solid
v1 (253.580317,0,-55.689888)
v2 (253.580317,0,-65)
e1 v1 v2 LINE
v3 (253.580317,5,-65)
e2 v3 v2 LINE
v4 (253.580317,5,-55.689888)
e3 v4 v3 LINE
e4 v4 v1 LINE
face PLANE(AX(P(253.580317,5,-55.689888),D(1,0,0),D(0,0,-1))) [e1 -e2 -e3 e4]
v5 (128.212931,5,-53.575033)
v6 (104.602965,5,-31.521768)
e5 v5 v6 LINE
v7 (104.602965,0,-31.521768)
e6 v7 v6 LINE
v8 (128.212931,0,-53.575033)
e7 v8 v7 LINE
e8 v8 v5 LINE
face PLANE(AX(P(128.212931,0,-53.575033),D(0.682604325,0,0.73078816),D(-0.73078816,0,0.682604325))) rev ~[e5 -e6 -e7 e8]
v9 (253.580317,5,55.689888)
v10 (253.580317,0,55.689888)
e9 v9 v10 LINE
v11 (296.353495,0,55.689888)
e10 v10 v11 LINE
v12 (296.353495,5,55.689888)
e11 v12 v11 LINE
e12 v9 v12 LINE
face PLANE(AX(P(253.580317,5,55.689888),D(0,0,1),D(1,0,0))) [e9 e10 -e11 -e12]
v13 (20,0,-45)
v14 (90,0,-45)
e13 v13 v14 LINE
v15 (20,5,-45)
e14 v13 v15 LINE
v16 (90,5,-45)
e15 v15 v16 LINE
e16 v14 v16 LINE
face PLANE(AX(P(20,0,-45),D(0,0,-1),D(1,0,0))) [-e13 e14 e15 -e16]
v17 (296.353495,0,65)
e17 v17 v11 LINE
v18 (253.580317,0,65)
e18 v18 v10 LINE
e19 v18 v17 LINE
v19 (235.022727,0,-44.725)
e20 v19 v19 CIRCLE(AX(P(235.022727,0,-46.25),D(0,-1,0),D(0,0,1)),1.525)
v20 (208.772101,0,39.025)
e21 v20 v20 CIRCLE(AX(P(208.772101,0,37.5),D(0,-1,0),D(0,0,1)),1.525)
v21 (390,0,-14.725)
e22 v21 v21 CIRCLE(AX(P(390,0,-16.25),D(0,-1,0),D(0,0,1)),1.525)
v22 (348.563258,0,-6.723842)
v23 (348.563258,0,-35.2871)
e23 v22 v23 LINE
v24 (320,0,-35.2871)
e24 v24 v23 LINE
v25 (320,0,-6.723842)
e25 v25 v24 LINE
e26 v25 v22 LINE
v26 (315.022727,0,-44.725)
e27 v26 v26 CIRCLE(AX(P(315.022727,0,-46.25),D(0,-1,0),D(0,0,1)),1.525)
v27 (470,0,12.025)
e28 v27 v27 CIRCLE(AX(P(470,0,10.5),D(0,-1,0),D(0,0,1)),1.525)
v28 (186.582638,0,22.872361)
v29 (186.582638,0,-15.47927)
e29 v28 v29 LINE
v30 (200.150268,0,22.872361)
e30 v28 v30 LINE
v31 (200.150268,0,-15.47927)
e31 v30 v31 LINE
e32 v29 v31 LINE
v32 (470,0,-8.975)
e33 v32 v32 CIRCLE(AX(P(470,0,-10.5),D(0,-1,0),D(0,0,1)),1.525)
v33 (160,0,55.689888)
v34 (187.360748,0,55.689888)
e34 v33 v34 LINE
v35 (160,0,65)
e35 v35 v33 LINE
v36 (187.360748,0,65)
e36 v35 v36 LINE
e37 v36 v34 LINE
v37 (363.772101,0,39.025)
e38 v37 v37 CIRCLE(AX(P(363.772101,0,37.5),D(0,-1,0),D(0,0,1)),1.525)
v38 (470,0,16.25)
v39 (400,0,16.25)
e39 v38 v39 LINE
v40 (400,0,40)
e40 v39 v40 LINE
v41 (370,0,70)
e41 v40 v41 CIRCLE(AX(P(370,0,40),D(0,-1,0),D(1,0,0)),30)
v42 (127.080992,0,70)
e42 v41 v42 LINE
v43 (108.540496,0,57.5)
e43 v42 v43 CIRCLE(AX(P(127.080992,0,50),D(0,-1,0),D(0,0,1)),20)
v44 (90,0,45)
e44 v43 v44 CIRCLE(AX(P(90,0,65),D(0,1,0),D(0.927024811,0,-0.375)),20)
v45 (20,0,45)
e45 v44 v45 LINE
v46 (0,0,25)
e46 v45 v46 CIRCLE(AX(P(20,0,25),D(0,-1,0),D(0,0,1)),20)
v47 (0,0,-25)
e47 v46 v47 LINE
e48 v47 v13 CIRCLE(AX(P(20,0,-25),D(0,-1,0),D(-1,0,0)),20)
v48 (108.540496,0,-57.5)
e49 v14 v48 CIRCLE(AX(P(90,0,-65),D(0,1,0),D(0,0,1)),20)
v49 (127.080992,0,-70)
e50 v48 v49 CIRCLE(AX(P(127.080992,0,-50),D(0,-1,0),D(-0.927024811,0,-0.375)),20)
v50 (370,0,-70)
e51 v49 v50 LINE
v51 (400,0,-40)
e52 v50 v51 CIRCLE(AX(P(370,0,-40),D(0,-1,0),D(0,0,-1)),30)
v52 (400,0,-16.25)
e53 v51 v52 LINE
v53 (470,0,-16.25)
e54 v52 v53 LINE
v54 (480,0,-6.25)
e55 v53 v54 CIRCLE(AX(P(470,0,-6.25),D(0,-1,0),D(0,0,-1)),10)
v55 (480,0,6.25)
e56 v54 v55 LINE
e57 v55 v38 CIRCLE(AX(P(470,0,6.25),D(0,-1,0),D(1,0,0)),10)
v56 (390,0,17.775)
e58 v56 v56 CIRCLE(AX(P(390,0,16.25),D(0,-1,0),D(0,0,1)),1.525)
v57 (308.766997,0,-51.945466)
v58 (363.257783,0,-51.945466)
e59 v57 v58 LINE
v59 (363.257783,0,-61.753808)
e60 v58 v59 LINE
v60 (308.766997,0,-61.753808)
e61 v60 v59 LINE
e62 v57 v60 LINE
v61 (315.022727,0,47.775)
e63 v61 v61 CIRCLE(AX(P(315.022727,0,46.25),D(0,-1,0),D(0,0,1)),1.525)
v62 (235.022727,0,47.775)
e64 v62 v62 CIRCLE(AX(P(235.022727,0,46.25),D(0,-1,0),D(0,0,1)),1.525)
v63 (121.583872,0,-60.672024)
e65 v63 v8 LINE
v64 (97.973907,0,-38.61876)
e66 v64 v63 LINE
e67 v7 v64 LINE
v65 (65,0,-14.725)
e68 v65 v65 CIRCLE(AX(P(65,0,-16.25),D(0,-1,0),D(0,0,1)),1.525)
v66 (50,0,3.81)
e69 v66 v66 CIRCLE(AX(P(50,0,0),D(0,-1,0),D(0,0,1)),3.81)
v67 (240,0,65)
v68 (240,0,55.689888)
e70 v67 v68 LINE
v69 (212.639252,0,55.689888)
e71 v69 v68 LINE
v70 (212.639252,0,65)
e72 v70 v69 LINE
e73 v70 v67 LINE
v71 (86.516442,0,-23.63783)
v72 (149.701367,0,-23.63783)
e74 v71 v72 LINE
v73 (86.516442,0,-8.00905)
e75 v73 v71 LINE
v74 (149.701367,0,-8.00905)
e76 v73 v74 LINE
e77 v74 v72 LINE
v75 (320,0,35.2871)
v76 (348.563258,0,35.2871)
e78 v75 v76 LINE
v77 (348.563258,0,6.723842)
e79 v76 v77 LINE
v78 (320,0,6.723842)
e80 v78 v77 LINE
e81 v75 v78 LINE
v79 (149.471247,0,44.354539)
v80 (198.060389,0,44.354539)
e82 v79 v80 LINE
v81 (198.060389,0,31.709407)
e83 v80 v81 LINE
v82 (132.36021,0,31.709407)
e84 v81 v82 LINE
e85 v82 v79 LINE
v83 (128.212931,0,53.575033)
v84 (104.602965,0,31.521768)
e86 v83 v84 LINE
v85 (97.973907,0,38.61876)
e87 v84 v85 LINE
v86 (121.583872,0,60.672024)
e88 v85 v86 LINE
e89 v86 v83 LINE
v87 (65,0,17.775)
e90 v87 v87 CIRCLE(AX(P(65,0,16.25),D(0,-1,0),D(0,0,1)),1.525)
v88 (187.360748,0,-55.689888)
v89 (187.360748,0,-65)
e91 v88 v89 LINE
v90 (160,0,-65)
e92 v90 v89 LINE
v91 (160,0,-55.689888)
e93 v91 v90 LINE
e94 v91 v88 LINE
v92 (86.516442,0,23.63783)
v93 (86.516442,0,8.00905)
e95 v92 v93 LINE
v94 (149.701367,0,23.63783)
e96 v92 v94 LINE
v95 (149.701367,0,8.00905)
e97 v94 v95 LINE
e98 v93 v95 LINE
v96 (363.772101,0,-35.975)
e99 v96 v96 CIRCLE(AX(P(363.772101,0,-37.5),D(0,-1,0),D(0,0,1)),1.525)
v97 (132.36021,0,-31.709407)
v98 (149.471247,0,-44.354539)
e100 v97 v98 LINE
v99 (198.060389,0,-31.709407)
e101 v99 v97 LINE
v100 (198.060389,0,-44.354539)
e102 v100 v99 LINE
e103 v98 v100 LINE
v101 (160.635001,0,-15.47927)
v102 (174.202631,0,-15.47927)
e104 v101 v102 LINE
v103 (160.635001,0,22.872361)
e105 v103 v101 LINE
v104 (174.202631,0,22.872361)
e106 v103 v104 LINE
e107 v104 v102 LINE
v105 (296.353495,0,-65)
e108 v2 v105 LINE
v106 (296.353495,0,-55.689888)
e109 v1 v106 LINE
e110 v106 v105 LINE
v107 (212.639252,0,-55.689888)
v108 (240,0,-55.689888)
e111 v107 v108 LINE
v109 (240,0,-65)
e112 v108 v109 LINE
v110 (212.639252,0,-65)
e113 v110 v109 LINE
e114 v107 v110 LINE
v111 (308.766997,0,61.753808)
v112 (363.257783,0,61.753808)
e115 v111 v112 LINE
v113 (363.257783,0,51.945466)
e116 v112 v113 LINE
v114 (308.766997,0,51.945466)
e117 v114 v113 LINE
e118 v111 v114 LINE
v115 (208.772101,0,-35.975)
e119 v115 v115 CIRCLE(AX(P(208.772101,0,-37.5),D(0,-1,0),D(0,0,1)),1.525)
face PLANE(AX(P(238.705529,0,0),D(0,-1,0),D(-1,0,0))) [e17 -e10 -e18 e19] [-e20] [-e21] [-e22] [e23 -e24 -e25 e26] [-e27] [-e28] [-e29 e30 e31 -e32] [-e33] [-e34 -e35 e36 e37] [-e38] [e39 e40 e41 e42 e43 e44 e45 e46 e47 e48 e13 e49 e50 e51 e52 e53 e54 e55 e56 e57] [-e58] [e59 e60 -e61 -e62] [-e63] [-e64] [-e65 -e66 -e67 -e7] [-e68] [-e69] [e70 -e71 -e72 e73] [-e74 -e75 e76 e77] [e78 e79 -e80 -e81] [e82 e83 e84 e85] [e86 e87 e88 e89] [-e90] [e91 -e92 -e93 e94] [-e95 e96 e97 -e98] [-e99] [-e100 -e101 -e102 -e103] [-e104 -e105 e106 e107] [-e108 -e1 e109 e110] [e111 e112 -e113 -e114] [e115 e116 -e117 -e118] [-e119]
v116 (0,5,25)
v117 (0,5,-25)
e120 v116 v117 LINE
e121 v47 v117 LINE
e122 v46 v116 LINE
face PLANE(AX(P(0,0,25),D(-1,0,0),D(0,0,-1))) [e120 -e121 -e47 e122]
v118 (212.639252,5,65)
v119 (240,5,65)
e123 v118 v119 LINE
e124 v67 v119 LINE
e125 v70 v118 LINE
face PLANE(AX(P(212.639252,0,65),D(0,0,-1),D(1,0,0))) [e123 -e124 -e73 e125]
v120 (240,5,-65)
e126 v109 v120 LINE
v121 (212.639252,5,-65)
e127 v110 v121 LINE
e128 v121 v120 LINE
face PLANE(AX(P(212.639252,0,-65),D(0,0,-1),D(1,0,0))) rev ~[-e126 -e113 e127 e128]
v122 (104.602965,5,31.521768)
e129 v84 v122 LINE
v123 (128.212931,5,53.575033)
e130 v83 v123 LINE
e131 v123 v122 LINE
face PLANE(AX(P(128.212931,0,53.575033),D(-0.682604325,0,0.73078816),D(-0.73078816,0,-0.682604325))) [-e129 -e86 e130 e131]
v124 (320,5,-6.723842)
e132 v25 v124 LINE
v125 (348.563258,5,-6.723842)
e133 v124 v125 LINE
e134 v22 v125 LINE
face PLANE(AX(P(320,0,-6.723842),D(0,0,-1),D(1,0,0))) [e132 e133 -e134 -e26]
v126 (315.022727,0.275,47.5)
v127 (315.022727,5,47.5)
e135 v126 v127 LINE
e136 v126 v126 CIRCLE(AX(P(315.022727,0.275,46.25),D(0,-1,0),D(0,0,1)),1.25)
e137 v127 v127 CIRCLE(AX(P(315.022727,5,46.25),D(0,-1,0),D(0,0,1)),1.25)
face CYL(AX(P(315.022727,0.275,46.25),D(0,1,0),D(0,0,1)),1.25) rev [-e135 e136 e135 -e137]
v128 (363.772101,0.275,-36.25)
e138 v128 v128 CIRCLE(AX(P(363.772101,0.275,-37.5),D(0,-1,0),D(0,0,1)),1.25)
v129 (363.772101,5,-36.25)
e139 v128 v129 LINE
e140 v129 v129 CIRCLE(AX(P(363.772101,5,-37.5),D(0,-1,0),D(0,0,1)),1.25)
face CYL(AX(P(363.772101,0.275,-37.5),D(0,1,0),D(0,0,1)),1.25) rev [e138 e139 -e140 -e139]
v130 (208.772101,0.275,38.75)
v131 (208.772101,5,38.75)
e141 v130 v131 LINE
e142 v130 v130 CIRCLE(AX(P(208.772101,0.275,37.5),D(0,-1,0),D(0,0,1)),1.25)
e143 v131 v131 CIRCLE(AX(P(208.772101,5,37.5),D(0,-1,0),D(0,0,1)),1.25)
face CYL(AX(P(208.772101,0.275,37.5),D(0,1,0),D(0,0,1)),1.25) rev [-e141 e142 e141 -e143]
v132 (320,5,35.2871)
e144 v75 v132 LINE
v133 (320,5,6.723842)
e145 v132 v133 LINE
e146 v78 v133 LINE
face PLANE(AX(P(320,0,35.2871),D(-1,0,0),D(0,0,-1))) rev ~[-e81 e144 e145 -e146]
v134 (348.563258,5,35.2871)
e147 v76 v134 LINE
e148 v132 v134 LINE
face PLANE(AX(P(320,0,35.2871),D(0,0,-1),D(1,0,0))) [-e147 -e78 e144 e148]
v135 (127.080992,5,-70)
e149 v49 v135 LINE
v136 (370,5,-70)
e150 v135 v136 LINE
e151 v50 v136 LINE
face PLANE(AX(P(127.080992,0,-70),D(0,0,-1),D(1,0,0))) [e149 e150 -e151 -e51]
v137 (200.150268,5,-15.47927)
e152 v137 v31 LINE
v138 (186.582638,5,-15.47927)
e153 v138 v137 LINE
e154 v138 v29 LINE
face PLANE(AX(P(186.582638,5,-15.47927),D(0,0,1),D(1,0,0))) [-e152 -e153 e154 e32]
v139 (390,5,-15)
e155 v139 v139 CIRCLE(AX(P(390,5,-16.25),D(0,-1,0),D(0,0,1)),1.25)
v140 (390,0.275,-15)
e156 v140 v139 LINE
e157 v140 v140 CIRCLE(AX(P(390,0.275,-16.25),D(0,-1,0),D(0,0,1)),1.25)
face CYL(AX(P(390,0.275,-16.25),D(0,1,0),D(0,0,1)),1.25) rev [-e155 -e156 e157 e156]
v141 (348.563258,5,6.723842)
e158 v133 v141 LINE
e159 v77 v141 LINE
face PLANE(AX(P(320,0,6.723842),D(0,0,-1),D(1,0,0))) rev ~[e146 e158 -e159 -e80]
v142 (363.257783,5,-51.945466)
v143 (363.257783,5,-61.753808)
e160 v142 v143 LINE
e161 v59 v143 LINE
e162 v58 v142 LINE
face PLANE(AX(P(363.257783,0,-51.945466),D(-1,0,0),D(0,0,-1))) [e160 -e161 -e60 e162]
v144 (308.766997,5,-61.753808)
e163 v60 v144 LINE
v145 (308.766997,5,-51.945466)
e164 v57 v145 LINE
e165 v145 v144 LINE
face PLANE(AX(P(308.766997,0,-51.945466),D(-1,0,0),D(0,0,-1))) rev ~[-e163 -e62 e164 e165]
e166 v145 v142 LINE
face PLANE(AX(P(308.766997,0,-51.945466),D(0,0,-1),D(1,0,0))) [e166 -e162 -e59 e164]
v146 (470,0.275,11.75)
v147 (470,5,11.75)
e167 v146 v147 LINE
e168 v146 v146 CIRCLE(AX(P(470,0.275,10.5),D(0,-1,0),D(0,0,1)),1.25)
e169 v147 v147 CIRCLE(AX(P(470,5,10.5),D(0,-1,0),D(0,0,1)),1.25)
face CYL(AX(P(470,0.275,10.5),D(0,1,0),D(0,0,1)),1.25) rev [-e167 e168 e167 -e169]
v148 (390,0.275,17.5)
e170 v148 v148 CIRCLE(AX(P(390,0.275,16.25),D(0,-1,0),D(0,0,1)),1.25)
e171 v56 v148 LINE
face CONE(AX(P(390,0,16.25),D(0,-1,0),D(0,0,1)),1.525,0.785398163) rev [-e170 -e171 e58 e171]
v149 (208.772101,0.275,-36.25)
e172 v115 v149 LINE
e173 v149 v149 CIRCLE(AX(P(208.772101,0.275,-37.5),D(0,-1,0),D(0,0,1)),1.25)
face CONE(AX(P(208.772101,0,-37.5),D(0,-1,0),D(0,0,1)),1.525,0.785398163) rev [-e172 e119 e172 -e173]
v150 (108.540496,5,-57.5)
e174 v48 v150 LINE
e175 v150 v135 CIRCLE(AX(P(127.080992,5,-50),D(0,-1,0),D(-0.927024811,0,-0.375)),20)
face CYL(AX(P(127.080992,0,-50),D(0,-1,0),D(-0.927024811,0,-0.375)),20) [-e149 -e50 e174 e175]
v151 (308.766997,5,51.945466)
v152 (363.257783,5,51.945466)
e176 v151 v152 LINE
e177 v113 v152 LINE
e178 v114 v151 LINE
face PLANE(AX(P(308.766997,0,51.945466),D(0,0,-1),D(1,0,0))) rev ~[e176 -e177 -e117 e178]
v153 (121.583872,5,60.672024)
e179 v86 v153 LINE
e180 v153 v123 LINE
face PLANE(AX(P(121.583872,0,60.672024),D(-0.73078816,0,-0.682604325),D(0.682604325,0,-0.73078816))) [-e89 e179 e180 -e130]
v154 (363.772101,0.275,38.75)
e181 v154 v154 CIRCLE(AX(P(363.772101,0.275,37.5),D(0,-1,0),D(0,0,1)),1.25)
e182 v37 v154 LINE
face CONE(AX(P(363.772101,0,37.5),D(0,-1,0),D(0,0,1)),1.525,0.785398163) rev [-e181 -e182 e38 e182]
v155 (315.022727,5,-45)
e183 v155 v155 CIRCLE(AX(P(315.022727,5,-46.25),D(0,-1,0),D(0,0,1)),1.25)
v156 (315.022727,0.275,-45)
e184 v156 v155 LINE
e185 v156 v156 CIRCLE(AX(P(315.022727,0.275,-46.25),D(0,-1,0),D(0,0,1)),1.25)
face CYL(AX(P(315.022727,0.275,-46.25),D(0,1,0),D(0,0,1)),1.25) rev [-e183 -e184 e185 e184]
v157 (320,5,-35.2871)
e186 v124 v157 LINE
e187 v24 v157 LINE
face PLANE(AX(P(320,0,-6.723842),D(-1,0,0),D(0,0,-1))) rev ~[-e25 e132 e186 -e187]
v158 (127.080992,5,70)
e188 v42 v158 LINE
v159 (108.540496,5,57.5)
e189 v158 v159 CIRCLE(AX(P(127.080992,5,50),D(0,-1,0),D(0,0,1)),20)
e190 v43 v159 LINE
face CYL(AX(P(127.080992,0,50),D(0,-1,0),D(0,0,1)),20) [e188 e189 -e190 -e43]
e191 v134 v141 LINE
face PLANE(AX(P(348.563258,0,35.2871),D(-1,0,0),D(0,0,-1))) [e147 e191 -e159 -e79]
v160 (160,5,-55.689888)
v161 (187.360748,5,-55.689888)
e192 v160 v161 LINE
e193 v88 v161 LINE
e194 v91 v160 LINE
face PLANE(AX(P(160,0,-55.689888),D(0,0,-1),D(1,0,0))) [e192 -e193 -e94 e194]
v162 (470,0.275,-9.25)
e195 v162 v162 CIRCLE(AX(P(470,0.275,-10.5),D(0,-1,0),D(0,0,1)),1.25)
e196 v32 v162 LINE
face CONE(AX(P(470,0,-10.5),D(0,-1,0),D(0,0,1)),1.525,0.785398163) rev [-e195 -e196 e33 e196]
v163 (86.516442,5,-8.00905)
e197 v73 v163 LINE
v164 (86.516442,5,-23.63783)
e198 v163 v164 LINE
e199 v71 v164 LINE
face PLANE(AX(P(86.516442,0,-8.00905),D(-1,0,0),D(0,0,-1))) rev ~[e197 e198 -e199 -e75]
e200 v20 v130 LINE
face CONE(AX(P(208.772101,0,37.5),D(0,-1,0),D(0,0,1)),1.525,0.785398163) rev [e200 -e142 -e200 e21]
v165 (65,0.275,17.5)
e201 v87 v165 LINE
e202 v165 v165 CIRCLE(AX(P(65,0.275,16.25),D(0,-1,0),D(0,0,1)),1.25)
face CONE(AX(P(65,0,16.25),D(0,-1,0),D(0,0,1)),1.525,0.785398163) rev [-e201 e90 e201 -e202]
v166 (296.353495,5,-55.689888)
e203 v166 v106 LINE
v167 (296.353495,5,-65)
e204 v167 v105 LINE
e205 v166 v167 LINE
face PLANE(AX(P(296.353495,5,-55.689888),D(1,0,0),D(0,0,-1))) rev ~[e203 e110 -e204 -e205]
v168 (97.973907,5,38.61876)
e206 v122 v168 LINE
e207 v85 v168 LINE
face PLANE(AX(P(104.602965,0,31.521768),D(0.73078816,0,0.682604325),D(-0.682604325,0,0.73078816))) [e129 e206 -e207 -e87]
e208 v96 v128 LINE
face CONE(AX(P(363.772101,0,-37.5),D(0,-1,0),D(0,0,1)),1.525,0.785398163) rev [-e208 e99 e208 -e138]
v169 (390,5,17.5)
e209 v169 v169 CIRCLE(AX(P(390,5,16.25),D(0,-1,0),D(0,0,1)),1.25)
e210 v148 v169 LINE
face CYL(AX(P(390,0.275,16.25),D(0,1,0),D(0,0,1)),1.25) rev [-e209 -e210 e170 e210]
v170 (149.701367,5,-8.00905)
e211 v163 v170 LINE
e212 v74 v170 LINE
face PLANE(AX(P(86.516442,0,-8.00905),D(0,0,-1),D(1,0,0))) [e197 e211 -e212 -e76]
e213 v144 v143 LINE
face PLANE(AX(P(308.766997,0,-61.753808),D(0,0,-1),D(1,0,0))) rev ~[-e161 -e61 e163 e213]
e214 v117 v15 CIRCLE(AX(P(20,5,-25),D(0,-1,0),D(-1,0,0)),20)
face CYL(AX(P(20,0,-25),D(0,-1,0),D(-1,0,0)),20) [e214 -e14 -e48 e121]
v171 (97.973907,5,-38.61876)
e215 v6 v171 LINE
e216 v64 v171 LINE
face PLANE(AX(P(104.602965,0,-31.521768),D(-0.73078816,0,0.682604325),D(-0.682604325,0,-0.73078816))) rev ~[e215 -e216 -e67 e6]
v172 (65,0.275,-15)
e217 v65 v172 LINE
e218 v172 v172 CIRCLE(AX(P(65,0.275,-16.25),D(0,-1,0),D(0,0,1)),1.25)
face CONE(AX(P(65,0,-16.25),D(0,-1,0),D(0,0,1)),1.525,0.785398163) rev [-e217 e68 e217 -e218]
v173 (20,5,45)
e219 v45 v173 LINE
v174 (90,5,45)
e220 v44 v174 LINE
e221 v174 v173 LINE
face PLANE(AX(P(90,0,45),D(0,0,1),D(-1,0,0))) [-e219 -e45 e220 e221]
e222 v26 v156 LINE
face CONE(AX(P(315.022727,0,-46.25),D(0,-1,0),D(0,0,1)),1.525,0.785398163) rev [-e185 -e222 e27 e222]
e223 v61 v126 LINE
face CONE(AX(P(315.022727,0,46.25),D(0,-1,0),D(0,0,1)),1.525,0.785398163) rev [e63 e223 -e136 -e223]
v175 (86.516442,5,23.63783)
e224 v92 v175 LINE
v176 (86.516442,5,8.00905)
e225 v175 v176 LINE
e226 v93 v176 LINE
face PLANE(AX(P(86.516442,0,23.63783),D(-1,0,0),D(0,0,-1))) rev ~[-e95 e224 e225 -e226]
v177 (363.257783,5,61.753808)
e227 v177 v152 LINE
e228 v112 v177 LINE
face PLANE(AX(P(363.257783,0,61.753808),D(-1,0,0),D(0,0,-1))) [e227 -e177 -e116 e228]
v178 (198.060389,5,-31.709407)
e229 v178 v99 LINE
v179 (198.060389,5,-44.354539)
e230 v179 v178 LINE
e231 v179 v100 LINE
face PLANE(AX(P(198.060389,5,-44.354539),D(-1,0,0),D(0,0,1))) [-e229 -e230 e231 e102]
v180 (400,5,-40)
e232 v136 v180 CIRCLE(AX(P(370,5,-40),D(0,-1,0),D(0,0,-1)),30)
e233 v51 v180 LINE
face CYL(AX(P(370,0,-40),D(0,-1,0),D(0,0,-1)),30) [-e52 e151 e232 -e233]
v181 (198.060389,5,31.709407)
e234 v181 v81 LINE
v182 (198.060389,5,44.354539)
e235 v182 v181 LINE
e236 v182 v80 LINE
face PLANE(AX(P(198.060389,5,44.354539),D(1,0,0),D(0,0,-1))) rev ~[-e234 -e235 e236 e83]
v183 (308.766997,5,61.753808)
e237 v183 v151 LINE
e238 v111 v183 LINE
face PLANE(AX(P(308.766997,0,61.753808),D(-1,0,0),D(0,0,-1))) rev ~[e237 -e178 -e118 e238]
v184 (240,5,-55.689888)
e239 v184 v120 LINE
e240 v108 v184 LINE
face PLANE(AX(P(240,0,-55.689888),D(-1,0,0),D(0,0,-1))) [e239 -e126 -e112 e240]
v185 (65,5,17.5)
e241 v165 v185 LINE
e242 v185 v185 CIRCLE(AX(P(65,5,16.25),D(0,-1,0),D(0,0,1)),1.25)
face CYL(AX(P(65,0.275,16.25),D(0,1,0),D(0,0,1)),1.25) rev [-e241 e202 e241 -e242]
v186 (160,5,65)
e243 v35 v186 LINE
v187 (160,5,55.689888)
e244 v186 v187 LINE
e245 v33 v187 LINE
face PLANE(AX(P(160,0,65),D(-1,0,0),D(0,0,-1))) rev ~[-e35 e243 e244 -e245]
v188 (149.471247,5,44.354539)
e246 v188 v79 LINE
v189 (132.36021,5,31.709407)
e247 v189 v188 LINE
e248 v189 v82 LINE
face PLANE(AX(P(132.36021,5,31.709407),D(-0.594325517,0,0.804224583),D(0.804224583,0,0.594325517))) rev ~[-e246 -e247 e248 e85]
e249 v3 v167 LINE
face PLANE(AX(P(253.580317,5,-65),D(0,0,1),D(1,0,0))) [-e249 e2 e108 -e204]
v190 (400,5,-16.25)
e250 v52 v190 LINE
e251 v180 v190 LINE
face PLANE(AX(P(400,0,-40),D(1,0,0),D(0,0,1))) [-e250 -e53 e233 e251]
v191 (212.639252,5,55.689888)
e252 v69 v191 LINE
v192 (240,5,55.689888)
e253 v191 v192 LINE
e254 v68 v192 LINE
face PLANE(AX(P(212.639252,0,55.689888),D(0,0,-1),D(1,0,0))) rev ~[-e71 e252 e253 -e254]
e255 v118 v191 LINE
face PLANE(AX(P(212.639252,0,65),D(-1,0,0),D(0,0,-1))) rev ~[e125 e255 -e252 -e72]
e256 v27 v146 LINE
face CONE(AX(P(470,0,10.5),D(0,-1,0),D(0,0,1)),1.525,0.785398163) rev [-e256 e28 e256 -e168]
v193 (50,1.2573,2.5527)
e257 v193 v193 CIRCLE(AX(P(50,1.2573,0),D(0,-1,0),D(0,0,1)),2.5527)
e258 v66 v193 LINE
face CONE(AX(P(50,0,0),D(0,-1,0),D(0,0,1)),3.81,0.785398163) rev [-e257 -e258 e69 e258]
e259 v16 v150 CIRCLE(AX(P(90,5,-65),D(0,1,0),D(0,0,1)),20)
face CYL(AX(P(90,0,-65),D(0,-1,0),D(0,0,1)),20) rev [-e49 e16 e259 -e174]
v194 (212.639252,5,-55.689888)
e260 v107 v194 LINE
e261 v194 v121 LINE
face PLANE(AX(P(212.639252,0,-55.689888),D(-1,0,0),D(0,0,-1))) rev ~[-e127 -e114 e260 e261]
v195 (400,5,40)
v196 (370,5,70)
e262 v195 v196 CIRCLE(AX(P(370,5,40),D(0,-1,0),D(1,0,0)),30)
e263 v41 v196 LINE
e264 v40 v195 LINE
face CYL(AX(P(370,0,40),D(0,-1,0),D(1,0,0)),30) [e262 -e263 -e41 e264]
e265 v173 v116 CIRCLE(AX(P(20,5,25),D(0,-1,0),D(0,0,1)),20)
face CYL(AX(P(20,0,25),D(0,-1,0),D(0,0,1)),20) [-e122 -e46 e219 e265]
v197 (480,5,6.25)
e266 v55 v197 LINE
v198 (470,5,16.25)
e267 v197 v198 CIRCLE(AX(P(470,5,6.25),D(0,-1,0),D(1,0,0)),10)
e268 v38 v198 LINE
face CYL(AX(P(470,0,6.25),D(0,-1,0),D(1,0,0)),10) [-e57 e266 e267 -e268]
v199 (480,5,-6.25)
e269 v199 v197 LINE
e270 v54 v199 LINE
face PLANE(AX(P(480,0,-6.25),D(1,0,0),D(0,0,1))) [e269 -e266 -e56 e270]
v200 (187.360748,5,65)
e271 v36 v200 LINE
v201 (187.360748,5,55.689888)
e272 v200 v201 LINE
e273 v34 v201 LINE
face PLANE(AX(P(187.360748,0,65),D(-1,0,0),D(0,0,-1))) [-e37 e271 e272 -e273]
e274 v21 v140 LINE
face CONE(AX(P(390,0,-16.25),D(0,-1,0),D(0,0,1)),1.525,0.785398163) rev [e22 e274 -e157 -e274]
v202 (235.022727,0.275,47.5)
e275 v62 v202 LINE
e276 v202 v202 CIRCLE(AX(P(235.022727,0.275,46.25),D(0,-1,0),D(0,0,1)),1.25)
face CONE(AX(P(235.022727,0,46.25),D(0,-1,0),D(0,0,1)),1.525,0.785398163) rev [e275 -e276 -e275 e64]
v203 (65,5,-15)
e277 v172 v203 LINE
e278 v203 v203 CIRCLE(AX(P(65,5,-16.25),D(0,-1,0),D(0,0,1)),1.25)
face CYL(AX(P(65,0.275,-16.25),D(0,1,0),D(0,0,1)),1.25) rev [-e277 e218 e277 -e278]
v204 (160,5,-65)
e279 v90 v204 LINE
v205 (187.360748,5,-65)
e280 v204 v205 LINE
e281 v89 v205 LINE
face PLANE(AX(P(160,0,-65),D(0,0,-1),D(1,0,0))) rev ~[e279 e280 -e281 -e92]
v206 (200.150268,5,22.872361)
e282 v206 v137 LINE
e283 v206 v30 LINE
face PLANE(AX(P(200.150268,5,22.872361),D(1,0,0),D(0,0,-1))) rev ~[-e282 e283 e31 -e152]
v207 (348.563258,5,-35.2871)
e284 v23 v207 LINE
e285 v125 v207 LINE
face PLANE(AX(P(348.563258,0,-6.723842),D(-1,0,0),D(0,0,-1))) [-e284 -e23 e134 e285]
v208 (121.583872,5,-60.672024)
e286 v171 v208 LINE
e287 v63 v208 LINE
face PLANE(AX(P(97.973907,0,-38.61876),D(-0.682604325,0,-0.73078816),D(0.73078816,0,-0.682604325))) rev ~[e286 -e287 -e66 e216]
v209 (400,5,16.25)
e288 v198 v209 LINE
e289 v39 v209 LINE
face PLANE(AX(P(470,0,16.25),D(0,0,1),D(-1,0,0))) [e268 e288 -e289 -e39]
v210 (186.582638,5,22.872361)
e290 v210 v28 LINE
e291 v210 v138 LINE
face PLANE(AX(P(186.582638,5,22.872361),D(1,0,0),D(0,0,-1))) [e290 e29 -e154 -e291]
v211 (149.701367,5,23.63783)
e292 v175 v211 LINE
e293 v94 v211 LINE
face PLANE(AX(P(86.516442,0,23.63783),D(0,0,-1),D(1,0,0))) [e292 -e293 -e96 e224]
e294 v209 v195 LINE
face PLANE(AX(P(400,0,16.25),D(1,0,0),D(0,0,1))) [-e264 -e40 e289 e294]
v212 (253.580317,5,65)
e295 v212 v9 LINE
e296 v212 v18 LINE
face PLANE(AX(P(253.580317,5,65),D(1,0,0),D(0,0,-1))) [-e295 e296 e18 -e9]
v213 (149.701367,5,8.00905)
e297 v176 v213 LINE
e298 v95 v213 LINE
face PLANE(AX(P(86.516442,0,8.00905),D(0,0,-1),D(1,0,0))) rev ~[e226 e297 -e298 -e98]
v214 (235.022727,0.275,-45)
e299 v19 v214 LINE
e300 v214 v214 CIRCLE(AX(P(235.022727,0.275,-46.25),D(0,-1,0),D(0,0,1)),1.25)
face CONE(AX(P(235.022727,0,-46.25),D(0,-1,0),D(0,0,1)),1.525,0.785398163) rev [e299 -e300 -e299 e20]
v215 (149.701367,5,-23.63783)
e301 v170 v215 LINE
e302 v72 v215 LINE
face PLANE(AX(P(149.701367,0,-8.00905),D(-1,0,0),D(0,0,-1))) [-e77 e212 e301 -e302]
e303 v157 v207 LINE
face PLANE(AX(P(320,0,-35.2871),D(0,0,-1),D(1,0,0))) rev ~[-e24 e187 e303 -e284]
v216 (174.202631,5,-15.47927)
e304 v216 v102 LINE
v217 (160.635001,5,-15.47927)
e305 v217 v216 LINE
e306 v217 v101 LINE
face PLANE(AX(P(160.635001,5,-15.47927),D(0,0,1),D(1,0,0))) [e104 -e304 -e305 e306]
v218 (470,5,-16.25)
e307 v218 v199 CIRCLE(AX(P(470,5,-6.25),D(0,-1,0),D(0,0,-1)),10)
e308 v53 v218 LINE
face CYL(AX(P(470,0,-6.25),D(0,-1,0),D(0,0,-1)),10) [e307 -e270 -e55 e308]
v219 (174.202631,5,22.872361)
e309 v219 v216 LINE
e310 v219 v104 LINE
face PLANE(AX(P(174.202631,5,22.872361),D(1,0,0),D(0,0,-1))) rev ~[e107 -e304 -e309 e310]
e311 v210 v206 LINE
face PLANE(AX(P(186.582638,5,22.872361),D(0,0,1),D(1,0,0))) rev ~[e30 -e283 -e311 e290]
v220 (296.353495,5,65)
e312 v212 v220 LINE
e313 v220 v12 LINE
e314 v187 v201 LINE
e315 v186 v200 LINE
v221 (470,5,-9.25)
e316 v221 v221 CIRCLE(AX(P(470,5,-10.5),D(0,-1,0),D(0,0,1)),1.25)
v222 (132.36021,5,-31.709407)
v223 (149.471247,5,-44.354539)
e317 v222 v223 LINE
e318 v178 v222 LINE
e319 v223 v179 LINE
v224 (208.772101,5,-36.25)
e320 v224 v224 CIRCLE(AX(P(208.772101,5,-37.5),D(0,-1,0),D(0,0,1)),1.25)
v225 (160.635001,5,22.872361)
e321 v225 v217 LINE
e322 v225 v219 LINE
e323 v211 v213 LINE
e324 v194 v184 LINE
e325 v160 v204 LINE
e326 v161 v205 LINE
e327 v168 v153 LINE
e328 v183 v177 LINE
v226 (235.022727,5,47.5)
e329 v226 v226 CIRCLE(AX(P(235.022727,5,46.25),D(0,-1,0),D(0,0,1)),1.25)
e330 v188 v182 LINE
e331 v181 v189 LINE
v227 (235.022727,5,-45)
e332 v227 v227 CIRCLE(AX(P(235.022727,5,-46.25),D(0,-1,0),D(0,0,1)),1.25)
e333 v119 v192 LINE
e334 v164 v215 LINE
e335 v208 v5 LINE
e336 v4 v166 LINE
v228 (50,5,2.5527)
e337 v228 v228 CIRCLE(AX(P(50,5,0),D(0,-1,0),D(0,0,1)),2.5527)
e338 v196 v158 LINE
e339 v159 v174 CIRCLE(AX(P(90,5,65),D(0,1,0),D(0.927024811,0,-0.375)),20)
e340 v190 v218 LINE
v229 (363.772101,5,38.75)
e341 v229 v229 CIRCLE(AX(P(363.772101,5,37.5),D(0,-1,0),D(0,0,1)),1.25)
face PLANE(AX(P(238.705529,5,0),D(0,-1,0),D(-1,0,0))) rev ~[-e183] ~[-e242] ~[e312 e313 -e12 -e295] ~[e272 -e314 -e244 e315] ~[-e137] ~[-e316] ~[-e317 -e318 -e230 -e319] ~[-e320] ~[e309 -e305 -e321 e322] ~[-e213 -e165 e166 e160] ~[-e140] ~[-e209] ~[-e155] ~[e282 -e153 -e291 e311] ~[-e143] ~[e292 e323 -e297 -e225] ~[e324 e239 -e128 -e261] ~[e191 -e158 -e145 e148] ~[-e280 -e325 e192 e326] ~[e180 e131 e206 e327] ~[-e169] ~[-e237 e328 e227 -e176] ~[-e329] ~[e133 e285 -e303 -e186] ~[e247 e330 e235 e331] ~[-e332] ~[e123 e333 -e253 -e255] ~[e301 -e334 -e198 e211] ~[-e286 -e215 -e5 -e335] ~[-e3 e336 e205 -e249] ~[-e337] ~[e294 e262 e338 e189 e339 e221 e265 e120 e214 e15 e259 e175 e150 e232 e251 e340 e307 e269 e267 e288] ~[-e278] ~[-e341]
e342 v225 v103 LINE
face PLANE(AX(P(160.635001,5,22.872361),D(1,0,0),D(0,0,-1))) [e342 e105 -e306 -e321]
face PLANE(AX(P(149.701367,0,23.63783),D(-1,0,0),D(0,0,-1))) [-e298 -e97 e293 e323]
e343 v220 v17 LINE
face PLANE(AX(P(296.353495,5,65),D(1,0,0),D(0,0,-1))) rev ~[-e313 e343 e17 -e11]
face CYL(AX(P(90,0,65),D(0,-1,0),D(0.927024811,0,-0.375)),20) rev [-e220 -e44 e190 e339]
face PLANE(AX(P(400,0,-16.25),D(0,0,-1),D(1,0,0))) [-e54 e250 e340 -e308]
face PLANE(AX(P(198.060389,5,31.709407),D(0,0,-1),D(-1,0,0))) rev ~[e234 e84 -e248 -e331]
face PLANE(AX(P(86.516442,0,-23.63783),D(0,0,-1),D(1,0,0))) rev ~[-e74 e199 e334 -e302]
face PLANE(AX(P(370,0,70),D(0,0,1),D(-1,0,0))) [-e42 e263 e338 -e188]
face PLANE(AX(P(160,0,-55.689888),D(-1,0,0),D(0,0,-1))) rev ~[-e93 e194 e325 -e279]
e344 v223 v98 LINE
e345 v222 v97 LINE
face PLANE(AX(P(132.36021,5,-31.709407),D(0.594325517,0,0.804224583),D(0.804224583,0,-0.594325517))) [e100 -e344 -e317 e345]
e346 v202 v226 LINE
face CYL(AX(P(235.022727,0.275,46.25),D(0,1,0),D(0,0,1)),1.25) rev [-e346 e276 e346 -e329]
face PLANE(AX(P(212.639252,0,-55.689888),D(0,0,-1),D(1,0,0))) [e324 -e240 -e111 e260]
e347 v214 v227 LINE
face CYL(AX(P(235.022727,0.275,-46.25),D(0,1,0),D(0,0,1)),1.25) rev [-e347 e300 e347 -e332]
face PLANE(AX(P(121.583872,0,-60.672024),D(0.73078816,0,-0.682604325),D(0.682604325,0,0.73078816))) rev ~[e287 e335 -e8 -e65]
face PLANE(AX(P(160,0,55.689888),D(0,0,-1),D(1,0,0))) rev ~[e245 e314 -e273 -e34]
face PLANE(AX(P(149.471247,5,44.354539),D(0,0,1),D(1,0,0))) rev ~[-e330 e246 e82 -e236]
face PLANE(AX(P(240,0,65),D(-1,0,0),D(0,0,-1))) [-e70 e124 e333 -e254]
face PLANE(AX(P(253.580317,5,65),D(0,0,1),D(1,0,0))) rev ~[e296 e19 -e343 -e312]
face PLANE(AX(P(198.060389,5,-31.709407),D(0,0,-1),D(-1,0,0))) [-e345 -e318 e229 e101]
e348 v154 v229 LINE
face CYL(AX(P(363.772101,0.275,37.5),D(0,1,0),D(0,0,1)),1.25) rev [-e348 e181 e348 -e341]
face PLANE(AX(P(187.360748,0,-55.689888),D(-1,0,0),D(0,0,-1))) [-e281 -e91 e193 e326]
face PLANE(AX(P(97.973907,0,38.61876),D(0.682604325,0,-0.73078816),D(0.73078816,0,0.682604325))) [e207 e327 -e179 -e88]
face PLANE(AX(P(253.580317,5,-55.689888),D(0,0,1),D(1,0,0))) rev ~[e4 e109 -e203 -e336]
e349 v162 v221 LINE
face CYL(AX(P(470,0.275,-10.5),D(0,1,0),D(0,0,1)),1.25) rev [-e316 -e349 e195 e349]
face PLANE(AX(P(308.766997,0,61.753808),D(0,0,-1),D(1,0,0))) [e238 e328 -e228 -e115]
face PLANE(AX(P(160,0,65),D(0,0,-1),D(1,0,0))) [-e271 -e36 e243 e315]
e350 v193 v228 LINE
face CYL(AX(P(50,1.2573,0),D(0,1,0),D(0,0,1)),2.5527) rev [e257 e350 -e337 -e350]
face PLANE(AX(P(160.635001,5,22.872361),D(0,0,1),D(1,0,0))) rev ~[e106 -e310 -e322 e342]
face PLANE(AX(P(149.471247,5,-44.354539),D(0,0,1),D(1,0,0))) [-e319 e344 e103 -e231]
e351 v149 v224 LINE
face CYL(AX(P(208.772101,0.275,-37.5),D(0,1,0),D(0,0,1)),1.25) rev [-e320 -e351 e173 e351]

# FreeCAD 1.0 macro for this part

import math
import FreeCAD as App
import Part
import Sketcher
from FreeCAD import Vector
Q = App.Units.Quantity


def add_polygon(sketch, points):
    """Adds a closed chain of lines whose ends are joined by coincident constraints."""
    first, n = sketch.GeometryCount, len(points)
    for a, b in zip(points, points[1:] + points[:1]):
        sketch.addGeometry(Part.LineSegment(App.Vector(*a, 0), App.Vector(*b, 0)), False)
    for i in range(n):
        sketch.addConstraint(Sketcher.Constraint("Coincident", first + i, 2, first + (i + 1) % n, 1))

doc = App.newDocument("Part")
body = doc.addObject("PartDesign::Body", "Body")

sketch1 = body.newObject("Sketcher::SketchObject", "Sketch")
sketch1.AttachmentSupport = (doc.getObject("XZ_Plane"), [""])
sketch1.MapMode = "FlatFace"
sketch1.addGeometry(Part.LineSegment(Vector(0, -25, 0), Vector(0, 25, 0)), False)
sketch1.addGeometry(Part.ArcOfCircle(Part.Circle(Vector(20, 25, 0), Vector(0, 0, 1), 20), math.radians(90), math.radians(180)), False)
sketch1.addGeometry(Part.LineSegment(Vector(20, 45, 0), Vector(90, 45, 0)), False)
sketch1.addGeometry(Part.ArcOfCircle(Part.Circle(Vector(90, 65, 0), Vector(0, 0, 1), 20), math.radians(-90), math.radians(-22)), False)
sketch1.addGeometry(Part.ArcOfCircle(Part.Circle(Vector(127, 50, 0), Vector(0, 0, 1), 20), math.radians(90), math.radians(158)), False)
sketch1.addGeometry(Part.LineSegment(Vector(127, 70, 0), Vector(370, 70, 0)), False)
sketch1.addGeometry(Part.ArcOfCircle(Part.Circle(Vector(370, 40, 0), Vector(0, 0, 1), 30), math.radians(0), math.radians(90)), False)
sketch1.addGeometry(Part.LineSegment(Vector(400, 40, 0), Vector(400, 16, 0)), False)
sketch1.addGeometry(Part.LineSegment(Vector(400, 16, 0), Vector(470, 16, 0)), False)
sketch1.addGeometry(Part.ArcOfCircle(Part.Circle(Vector(470, 6, 0), Vector(0, 0, 1), 10), math.radians(0), math.radians(90)), False)
sketch1.addGeometry(Part.LineSegment(Vector(480, 6, 0), Vector(480, -6, 0)), False)
sketch1.addGeometry(Part.ArcOfCircle(Part.Circle(Vector(470, -6, 0), Vector(0, 0, 1), 10), math.radians(-90), math.radians(0)), False)
sketch1.addGeometry(Part.LineSegment(Vector(470, -16, 0), Vector(400, -16, 0)), False)
sketch1.addGeometry(Part.LineSegment(Vector(400, -16, 0), Vector(400, -40, 0)), False)
sketch1.addGeometry(Part.ArcOfCircle(Part.Circle(Vector(370, -40, 0), Vector(0, 0, 1), 30), math.radians(-90), math.radians(0)), False)
sketch1.addGeometry(Part.LineSegment(Vector(370, -70, 0), Vector(127, -70, 0)), False)
sketch1.addGeometry(Part.ArcOfCircle(Part.Circle(Vector(127, -50, 0), Vector(0, 0, 1), 20), math.radians(-158), math.radians(-90)), False)
sketch1.addGeometry(Part.ArcOfCircle(Part.Circle(Vector(90, -65, 0), Vector(0, 0, 1), 20), math.radians(22), math.radians(90)), False)
sketch1.addGeometry(Part.LineSegment(Vector(90, -45, 0), Vector(20, -45, 0)), False)
sketch1.addGeometry(Part.ArcOfCircle(Part.Circle(Vector(20, -25, 0), Vector(0, 0, 1), 20), math.radians(180), math.radians(270)), False)
add_polygon(sketch1, [(309, 62), (309, 52), (363, 52), (363, 62)])
add_polygon(sketch1, [(213, 65), (213, 56), (240, 56), (240, 65)])
add_polygon(sketch1, [(320, 35), (320, 7), (349, 7), (349, 35)])
add_polygon(sketch1, [(160, 65), (160, 56), (187, 56), (187, 65)])
add_polygon(sketch1, [(122, 61), (98, 39), (105, 32), (128, 54)])
add_polygon(sketch1, [(87, 24), (87, 8), (150, 8), (150, 24)])
add_polygon(sketch1, [(320, -7), (320, -35), (349, -35), (349, -7)])
add_polygon(sketch1, [(309, -52), (309, -62), (363, -62), (363, -52)])
add_polygon(sketch1, [(213, -56), (213, -65), (240, -65), (240, -56)])
add_polygon(sketch1, [(87, -8), (87, -24), (150, -24), (150, -8)])
add_polygon(sketch1, [(160, -56), (160, -65), (187, -65), (187, -56)])
add_polygon(sketch1, [(98, -39), (122, -61), (128, -54), (105, -32)])
sketch1.addConstraint([
    Sketcher.Constraint("Tangent", 0, 2, 1, 2),
    Sketcher.Constraint("Tangent", 1, 1, 2, 1),
    Sketcher.Constraint("Tangent", 2, 2, 3, 1),
    Sketcher.Constraint("Tangent", 3, 2, 4, 2),
    Sketcher.Constraint("Tangent", 4, 1, 5, 1),
    Sketcher.Constraint("Tangent", 5, 2, 6, 2),
    Sketcher.Constraint("Tangent", 6, 1, 7, 1),
    Sketcher.Constraint("Coincident", 7, 2, 8, 1),
    Sketcher.Constraint("Tangent", 8, 2, 9, 2),
    Sketcher.Constraint("Tangent", 9, 1, 10, 1),
    Sketcher.Constraint("Tangent", 10, 2, 11, 2),
    Sketcher.Constraint("Tangent", 11, 1, 12, 1),
    Sketcher.Constraint("Coincident", 12, 2, 13, 1),
    Sketcher.Constraint("Tangent", 13, 2, 14, 2),
    Sketcher.Constraint("Tangent", 14, 1, 15, 1),
    Sketcher.Constraint("Tangent", 15, 2, 16, 2),
    Sketcher.Constraint("Tangent", 16, 1, 17, 1),
    Sketcher.Constraint("Tangent", 17, 2, 18, 1),
    Sketcher.Constraint("Tangent", 18, 2, 19, 2),
    Sketcher.Constraint("Tangent", 19, 1, 0, 1),
    Sketcher.Constraint("Vertical", 0),
    Sketcher.Constraint("Horizontal", 2),
    Sketcher.Constraint("Horizontal", 5),
    Sketcher.Constraint("Vertical", 7),
    Sketcher.Constraint("Horizontal", 8),
    Sketcher.Constraint("Vertical", 10),
    Sketcher.Constraint("Horizontal", 12),
    Sketcher.Constraint("Vertical", 13),
    Sketcher.Constraint("Horizontal", 15),
    Sketcher.Constraint("Horizontal", 18),
    Sketcher.Constraint("Vertical", 20),
    Sketcher.Constraint("Horizontal", 21),
    Sketcher.Constraint("Vertical", 22),
    Sketcher.Constraint("Horizontal", 23),
    Sketcher.Constraint("Vertical", 24),
    Sketcher.Constraint("Horizontal", 25),
    Sketcher.Constraint("Vertical", 26),
    Sketcher.Constraint("Horizontal", 27),
    Sketcher.Constraint("Vertical", 28),
    Sketcher.Constraint("Horizontal", 29),
    Sketcher.Constraint("Vertical", 30),
    Sketcher.Constraint("Horizontal", 31),
    Sketcher.Constraint("Vertical", 32),
    Sketcher.Constraint("Horizontal", 33),
    Sketcher.Constraint("Vertical", 34),
    Sketcher.Constraint("Horizontal", 35),
    Sketcher.Constraint("Vertical", 40),
    Sketcher.Constraint("Horizontal", 41),
    Sketcher.Constraint("Vertical", 42),
    Sketcher.Constraint("Horizontal", 43),
    Sketcher.Constraint("Vertical", 44),
    Sketcher.Constraint("Horizontal", 45),
    Sketcher.Constraint("Vertical", 46),
    Sketcher.Constraint("Horizontal", 47),
    Sketcher.Constraint("Vertical", 48),
    Sketcher.Constraint("Horizontal", 49),
    Sketcher.Constraint("Vertical", 50),
    Sketcher.Constraint("Horizontal", 51),
    Sketcher.Constraint("Vertical", 52),
    Sketcher.Constraint("Horizontal", 53),
    Sketcher.Constraint("Vertical", 54),
    Sketcher.Constraint("Horizontal", 55),
    Sketcher.Constraint("Vertical", 56),
    Sketcher.Constraint("Horizontal", 57),
    Sketcher.Constraint("Vertical", 58),
    Sketcher.Constraint("Horizontal", 59),
    Sketcher.Constraint("Vertical", 60),
    Sketcher.Constraint("Horizontal", 61),
    Sketcher.Constraint("Vertical", 62),
    Sketcher.Constraint("Horizontal", 63),
    Sketcher.Constraint("Equal", 1, 3),
    Sketcher.Constraint("Equal", 3, 4),
    Sketcher.Constraint("Equal", 9, 11),
    Sketcher.Constraint("Equal", 6, 14),
    Sketcher.Constraint("Equal", 4, 16),
    Sketcher.Constraint("Equal", 16, 17),
    Sketcher.Constraint("Equal", 17, 19),
    Sketcher.Constraint("Symmetric", 0, 2, 19, 1, -1, 1),
    Sketcher.Constraint("Symmetric", 6, 3, 14, 3, -1),
    Sketcher.Constraint("Symmetric", 31, 2, 44, 2, -1),
    Sketcher.Constraint("Symmetric", 29, 2, 46, 2, -1),
    Sketcher.Constraint("Symmetric", 23, 2, 48, 2, -1),
    Sketcher.Constraint("Symmetric", 21, 2, 50, 2, -1),
    Sketcher.Constraint("Symmetric", 27, 2, 52, 2, -1),
    Sketcher.Constraint("Symmetric", 25, 2, 54, 2, -1),
    Sketcher.Constraint("Symmetric", 43, 2, 56, 2, -1),
    Sketcher.Constraint("Symmetric", 41, 2, 58, 2, -1),
    Sketcher.Constraint("Symmetric", 35, 2, 60, 2, -1),
    Sketcher.Constraint("Symmetric", 33, 2, 62, 2, -1),
    Sketcher.Constraint("Symmetric", 39, 2, 64, 2, -1),
    Sketcher.Constraint("Symmetric", 38, 2, 65, 2, -1),
    Sketcher.Constraint("Symmetric", 37, 2, 66, 2, -1),
    Sketcher.Constraint("Symmetric", 36, 2, 67, 2, -1),
    Sketcher.Constraint("Perpendicular", 36, 37),
    Sketcher.Constraint("Perpendicular", 37, 38),
    Sketcher.Constraint("Perpendicular", 38, 39),
    Sketcher.Constraint("Horizontal", 3, 3, 26, 2),
    Sketcher.Constraint("Horizontal", 25, 2, 32, 2),
    Sketcher.Constraint("Horizontal", 27, 2, 34, 2),
    Sketcher.Constraint("Vertical", 4, 3, 16, 3),
    Sketcher.Constraint("Equal", 2, 8),
    Sketcher.Constraint("Equal", 27, 33),
    Sketcher.Constraint("Equal", 7, 13),
    Sketcher.Constraint("Equal", 47, 28),
    Sketcher.Constraint("Radius", 1, Q("20 mm")),
    Sketcher.Constraint("Radius", 6, Q("30 mm")),
    Sketcher.Constraint("Radius", 9, Q("10 mm")),
    Sketcher.Constraint("DistanceX", 2, 1, 2, 2, Q("70 mm")),
    Sketcher.Constraint("DistanceY", 0, 1, 0, 2, Q("50 mm")),
    Sketcher.Constraint("DistanceY", 10, 2, 10, 1, Q("12.5 mm")),
    Sketcher.Constraint("DistanceY", -1, 1, 4, 3, Q("50 mm")),
    Sketcher.Constraint("DistanceX", -1, 1, 6, 3, Q("370 mm")),
    Sketcher.Constraint("DistanceX", -1, 1, 25, 2, Q("240 mm")),
    Sketcher.Constraint("DistanceX", -1, 1, 28, 2, Q("320 mm")),
    Sketcher.Constraint("DistanceX", -1, 1, 32, 2, Q("160 mm")),
    Sketcher.Constraint("DistanceX", 29, 1, 29, 2, Q("28.563258 mm")),
    Sketcher.Constraint("DistanceY", 20, 2, 20, 1, Q("9.808342 mm")),
    Sketcher.Constraint("DistanceY", 40, 2, 40, 1, Q("15.62878 mm")),
    Sketcher.Constraint("DistanceY", -1, 1, 30, 2, Q("35.2871 mm")),
    Sketcher.Constraint("Distance", 37, Q("9.711421 mm")),
    Sketcher.Constraint("DistanceX", 21, 1, 21, 2, Q("54.490787 mm")),
    Sketcher.Constraint("DistanceX", 25, 1, 25, 2, Q("27.360748 mm")),
    Sketcher.Constraint("DistanceX", 41, 1, 41, 2, Q("63.184925 mm")),
    Sketcher.Constraint("DistanceY", 24, 2, 24, 1, Q("9.310112 mm")),
    Sketcher.Constraint("DistanceY", -1, 1, 36, 2, Q("38.61876 mm")),
    Sketcher.Constraint("DistanceY", -1, 1, 37, 2, Q("31.521768 mm")),
    Sketcher.Constraint("DistanceX", -1, 1, 38, 2, Q("128.212931 mm")),
    Sketcher.Constraint("DistanceX", -1, 1, 40, 2, Q("86.516442 mm")),
    Sketcher.Constraint("DistanceY", -1, 1, 40, 2, Q("8.00905 mm")),
    Sketcher.Constraint("Distance", 36, Q("32.307537 mm")),
    Sketcher.Constraint("DistanceX", -1, 1, 20, 2, Q("308.766997 mm")),
    Sketcher.Constraint("DistanceY", -1, 1, 20, 2, Q("51.945466 mm")),
])
pad1 = body.newObject("PartDesign::Pad", "Pad")
pad1.Profile = sketch1
pad1.Length = 5
pad1.Reversed = True

sketch2 = body.newObject("Sketcher::SketchObject", "Sketch001")
sketch2.AttachmentSupport = (doc.getObject("YZ_Plane"), [""])
sketch2.MapMode = "FlatFace"
sketch2.AttachmentOffset = App.Placement(Vector(0, 0, 470), App.Rotation())
add_polygon(sketch2, [(0, 10.5), (5, 10.5), (5, 11.75), (0.28, 11.75), (0, 12.03)])
sketch2.addGeometry(Part.LineSegment(Vector(5, 10.5, 0), Vector(0, 10.5, 0)), True)
sketch2.addConstraint([
    Sketcher.Constraint("Horizontal", 0),
    Sketcher.Constraint("Vertical", 1),
    Sketcher.Constraint("Horizontal", 2),
    Sketcher.Constraint("Vertical", 4),
    Sketcher.Constraint("Horizontal", 5),
    Sketcher.Constraint("Coincident", 5, 1, 0, 2),
    Sketcher.Constraint("PointOnObject", 3, 2, -2),
    Sketcher.Constraint("PointOnObject", 5, 2, -2),
    Sketcher.Constraint("DistanceX", 0, 1, 0, 2, Q("5 mm")),
    Sketcher.Constraint("Angle", 3, Q("135 deg")),
    Sketcher.Constraint("DistanceY", 1, 1, 1, 2, Q("1.25 mm")),
    Sketcher.Constraint("DistanceY", -1, 1, 0, 2, Q("10.5 mm")),
    Sketcher.Constraint("DistanceX", 2, 2, 2, 1, Q("4.725 mm")),
])
groove = body.newObject("PartDesign::Groove", "Groove")
groove.Profile = sketch2
groove.ReferenceAxis = (sketch2, ["Axis0"])
groove.Angle = 360
doc.recompute()

datumline = body.newObject("PartDesign::Line", "DatumLine")
datumline.Placement = App.Placement(Vector(0, 0, 0), App.Rotation(Vector(0, 0, 1), Vector(-0.948386511, 0, -0.317116739)))
linearpattern = body.newObject("PartDesign::LinearPattern", "LinearPattern")
linearpattern.Originals = [groove]
linearpattern.Direction = (datumline, [""])
linearpattern.Mode = "offset"
linearpattern.Offset = 84.353794
linearpattern.Occurrences = 2
body.Tip = linearpattern
doc.recompute()

datumline2 = body.newObject("PartDesign::Line", "DatumLine001")
datumline2.Placement = App.Placement(Vector(0, 0, 0), App.Rotation(Vector(0, 0, 1), Vector(-0.997426957, 0, 0.071690063)))
linearpattern2 = body.newObject("PartDesign::LinearPattern", "LinearPattern001")
linearpattern2.Originals = [groove]
linearpattern2.Direction = (datumline2, [""])
linearpattern2.Mode = "offset"
linearpattern2.Offset = 80.206374
linearpattern2.Occurrences = 2
body.Tip = linearpattern2
doc.recompute()

datumline3 = body.newObject("PartDesign::Line", "DatumLine002")
datumline3.Placement = App.Placement(Vector(0, 0, 0), App.Rotation(Vector(0, 0, 1), Vector(-0.911286561, 0, -0.411772757)))
linearpattern3 = body.newObject("PartDesign::LinearPattern", "LinearPattern002")
linearpattern3.Originals = [groove]
linearpattern3.Direction = (datumline3, [""])
linearpattern3.Mode = "offset"
linearpattern3.Offset = 116.569149
linearpattern3.Occurrences = 2
body.Tip = linearpattern3
doc.recompute()

datumline4 = body.newObject("PartDesign::Line", "DatumLine003")
datumline4.Placement = App.Placement(Vector(0, 0, 0), App.Rotation(Vector(0, 0, 1), Vector(-0.969183983, 0, 0.246337993)))
linearpattern4 = body.newObject("PartDesign::LinearPattern", "LinearPattern003")
linearpattern4.Originals = [groove]
linearpattern4.Direction = (datumline4, [""])
linearpattern4.Mode = "offset"
linearpattern4.Offset = 109.605504
linearpattern4.Occurrences = 2
body.Tip = linearpattern4
doc.recompute()

datumline5 = body.newObject("PartDesign::Line", "DatumLine004")
datumline5.Placement = App.Placement(Vector(0, 0, 0), App.Rotation(Vector(0, 0, 1), Vector(-0.972052622, 0, -0.234763071)))
linearpattern5 = body.newObject("PartDesign::LinearPattern", "LinearPattern004")
linearpattern5.Originals = [groove]
linearpattern5.Direction = (datumline5, [""])
linearpattern5.Mode = "offset"
linearpattern5.Offset = 241.733079
linearpattern5.Occurrences = 2
body.Tip = linearpattern5
doc.recompute()

datumline6 = body.newObject("PartDesign::Line", "DatumLine005")
datumline6.Placement = App.Placement(Vector(0, 0, 0), App.Rotation(Vector(0, 0, 1), Vector(-0.939023109, 0, -0.343854039)))
linearpattern6 = body.newObject("PartDesign::LinearPattern", "LinearPattern005")
linearpattern6.Originals = [groove]
linearpattern6.Direction = (datumline6, [""])
linearpattern6.Mode = "offset"
linearpattern6.Offset = 165.040958
linearpattern6.Occurrences = 2
body.Tip = linearpattern6
doc.recompute()

datumline7 = body.newObject("PartDesign::Line", "DatumLine006")
datumline7.Placement = App.Placement(Vector(0, 0, 0), App.Rotation(Vector(0, 0, 1), Vector(-0.974410459, 0, 0.224776015)))
linearpattern7 = body.newObject("PartDesign::LinearPattern", "LinearPattern006")
linearpattern7.Originals = [groove]
linearpattern7.Direction = (datumline7, [""])
linearpattern7.Mode = "offset"
linearpattern7.Offset = 159.047219
linearpattern7.Occurrences = 2
body.Tip = linearpattern7
doc.recompute()

datumline8 = body.newObject("PartDesign::Line", "DatumLine007")
datumline8.Placement = App.Placement(Vector(0, 0, 0), App.Rotation(Vector(0, 0, 1), Vector(-0.988623474, 0, 0.150411521)))
linearpattern8 = body.newObject("PartDesign::LinearPattern", "LinearPattern007")
linearpattern8.Originals = [groove]
linearpattern8.Direction = (datumline8, [""])
linearpattern8.Mode = "offset"
linearpattern8.Offset = 237.68126
linearpattern8.Occurrences = 2
body.Tip = linearpattern8
doc.recompute()

datumline9 = body.newObject("PartDesign::Line", "DatumLine008")
datumline9.Placement = App.Placement(Vector(0, 0, 0), App.Rotation(Vector(0, 0, 1), Vector(-0.983534209, 0, -0.180722052)))
linearpattern9 = body.newObject("PartDesign::LinearPattern", "LinearPattern008")
linearpattern9.Originals = [groove]
linearpattern9.Direction = (datumline9, [""])
linearpattern9.Mode = "offset"
linearpattern9.Offset = 265.601234
linearpattern9.Occurrences = 2
body.Tip = linearpattern9
doc.recompute()

datumline10 = body.newObject("PartDesign::Line", "DatumLine009")
datumline10.Placement = App.Placement(Vector(0, 0, 0), App.Rotation(Vector(0, 0, 1), Vector(-0.994700978, 0, 0.10281033)))
linearpattern10 = body.newObject("PartDesign::LinearPattern", "LinearPattern009")
linearpattern10.Originals = [groove]
linearpattern10.Direction = (datumline10, [""])
linearpattern10.Mode = "offset"
linearpattern10.Offset = 262.619526
linearpattern10.Occurrences = 2
body.Tip = linearpattern10
doc.recompute()

datumline11 = body.newObject("PartDesign::Line", "DatumLine010")
datumline11.Placement = App.Placement(Vector(0, 0, 0), App.Rotation(Vector(0, 0, 1), Vector(-0.997825851, 0, -0.065905781)))
linearpattern11 = body.newObject("PartDesign::LinearPattern", "LinearPattern010")
linearpattern11.Originals = [groove]
linearpattern11.Direction = (datumline11, [""])
linearpattern11.Mode = "offset"
linearpattern11.Offset = 405.882449
linearpattern11.Occurrences = 2
body.Tip = linearpattern11
doc.recompute()

datumline12 = body.newObject("PartDesign::Line", "DatumLine011")
datumline12.Placement = App.Placement(Vector(0, 0, 0), App.Rotation(Vector(0, 0, 1), Vector(-0.99989923, 0, 0.0141961)))
linearpattern12 = body.newObject("PartDesign::LinearPattern", "LinearPattern011")
linearpattern12.Originals = [groove]
linearpattern12.Direction = (datumline12, [""])
linearpattern12.Mode = "offset"
linearpattern12.Offset = 405.040816
linearpattern12.Occurrences = 2
body.Tip = linearpattern12
doc.recompute()

linearpattern13 = body.newObject("PartDesign::LinearPattern", "LinearPattern012")
linearpattern13.Originals = [groove]
linearpattern13.Direction = (doc.getObject("Z_Axis"), [""])
linearpattern13.Mode = "offset"
linearpattern13.Offset = 21
linearpattern13.Occurrences = 2
linearpattern13.Reversed = True
body.Tip = linearpattern13

sketch3 = body.newObject("Sketcher::SketchObject", "Sketch002")
sketch3.AttachmentSupport = (doc.getObject("YZ_Plane"), [""])
sketch3.MapMode = "FlatFace"
sketch3.AttachmentOffset = App.Placement(Vector(0, 0, 50), App.Rotation())
add_polygon(sketch3, [(0, 0), (5, 0), (5, 2.6), (1.3, 2.6), (0, 3.8)])
sketch3.addConstraint([
    Sketcher.Constraint("Horizontal", 0),
    Sketcher.Constraint("Vertical", 1),
    Sketcher.Constraint("Horizontal", 2),
    Sketcher.Constraint("Vertical", 4),
    Sketcher.Constraint("Coincident", 4, 2, -1, 1),
    Sketcher.Constraint("DistanceX", 0, 1, 0, 2, Q("5 mm")),
    Sketcher.Constraint("Angle", 3, Q("135 deg")),
    Sketcher.Constraint("DistanceY", 4, 2, 4, 1, Q("3.81 mm")),
    Sketcher.Constraint("DistanceX", 2, 2, 2, 1, Q("3.7427 mm")),
])
groove2 = body.newObject("PartDesign::Groove", "Groove001")
groove2.Profile = sketch3
groove2.ReferenceAxis = (sketch3, ["H_Axis"])
groove2.Angle = 360

sketch4 = body.newObject("Sketcher::SketchObject", "Sketch003")
sketch4.AttachmentSupport = (doc.getObject("XZ_Plane"), [""])
sketch4.MapMode = "FlatFace"
sketch4.AttachmentOffset = App.Placement(Vector(0, 0, -5), App.Rotation())
add_polygon(sketch4, [(161, -15), (161, 23), (174, 23), (174, -15)])
add_polygon(sketch4, [(187, -15), (187, 23), (200, 23), (200, -15)])
add_polygon(sketch4, [(254, -65), (254, -56), (296, -56), (296, -65)])
add_polygon(sketch4, [(254, 56), (254, 65), (296, 65), (296, 56)])
add_polygon(sketch4, [(149, -44), (132, -32), (198, -32), (198, -44)])
add_polygon(sketch4, [(198, 32), (132, 32), (149, 44), (198, 44)])
sketch4.addConstraint([
    Sketcher.Constraint("Vertical", 0),
    Sketcher.Constraint("Horizontal", 1),
    Sketcher.Constraint("Vertical", 2),
    Sketcher.Constraint("Horizontal", 3),
    Sketcher.Constraint("Vertical", 4),
    Sketcher.Constraint("Horizontal", 5),
    Sketcher.Constraint("Vertical", 6),
    Sketcher.Constraint("Horizontal", 7),
    Sketcher.Constraint("Vertical", 8),
    Sketcher.Constraint("Horizontal", 9),
    Sketcher.Constraint("Vertical", 10),
    Sketcher.Constraint("Horizontal", 11),
    Sketcher.Constraint("Vertical", 12),
    Sketcher.Constraint("Horizontal", 13),
    Sketcher.Constraint("Vertical", 14),
    Sketcher.Constraint("Horizontal", 15),
    Sketcher.Constraint("Horizontal", 17),
    Sketcher.Constraint("Vertical", 18),
    Sketcher.Constraint("Horizontal", 19),
    Sketcher.Constraint("Horizontal", 20),
    Sketcher.Constraint("Horizontal", 22),
    Sketcher.Constraint("Vertical", 23),
    Sketcher.Constraint("Symmetric", 11, 2, 12, 2, -1),
    Sketcher.Constraint("Symmetric", 9, 2, 14, 2, -1),
    Sketcher.Constraint("Symmetric", 16, 2, 20, 2, -1),
    Sketcher.Constraint("Symmetric", 19, 2, 21, 2, -1),
    Sketcher.Constraint("Horizontal", 1, 2, 4, 2),
    Sketcher.Constraint("Horizontal", 3, 2, 6, 2),
    Sketcher.Constraint("Vertical", 18, 2, 22, 2),
    Sketcher.Constraint("Equal", 3, 5),
    Sketcher.Constraint("DistanceY", 10, 2, -1, 1, Q("65 mm")),
    Sketcher.Constraint("DistanceX", -1, 1, 0, 2, Q("160.635001 mm")),
    Sketcher.Constraint("DistanceX", 1, 1, 1, 2, Q("13.56763 mm")),
    Sketcher.Constraint("DistanceX", 9, 1, 9, 2, Q("42.773179 mm")),
    Sketcher.Constraint("DistanceX", 17, 1, 17, 2, Q("65.700179 mm")),
    Sketcher.Constraint("DistanceX", 19, 2, 19, 1, Q("48.589142 mm")),
    Sketcher.Constraint("DistanceY", 0, 1, 0, 2, Q("38.35163 mm")),
    Sketcher.Constraint("DistanceY", 18, 2, 18, 1, Q("12.645132 mm")),
    Sketcher.Constraint("DistanceY", 8, 1, 8, 2, Q("9.310112 mm")),
    Sketcher.Constraint("DistanceY", -1, 1, 0, 2, Q("22.872361 mm")),
    Sketcher.Constraint("DistanceX", -1, 1, 16, 2, Q("132.36021 mm")),
    Sketcher.Constraint("DistanceY", 18, 2, -1, 1, Q("44.354539 mm")),
    Sketcher.Constraint("DistanceX", 6, 2, 8, 2, Q("53.430049 mm")),
    Sketcher.Constraint("DistanceX", 17, 2, 6, 2, Q("2.089879 mm")),
])
pocket1 = body.newObject("PartDesign::Pocket", "Pocket")
pocket1.Profile = sketch4
pocket1.Length = 5
pocket1.Reversed = True

doc.recompute()
